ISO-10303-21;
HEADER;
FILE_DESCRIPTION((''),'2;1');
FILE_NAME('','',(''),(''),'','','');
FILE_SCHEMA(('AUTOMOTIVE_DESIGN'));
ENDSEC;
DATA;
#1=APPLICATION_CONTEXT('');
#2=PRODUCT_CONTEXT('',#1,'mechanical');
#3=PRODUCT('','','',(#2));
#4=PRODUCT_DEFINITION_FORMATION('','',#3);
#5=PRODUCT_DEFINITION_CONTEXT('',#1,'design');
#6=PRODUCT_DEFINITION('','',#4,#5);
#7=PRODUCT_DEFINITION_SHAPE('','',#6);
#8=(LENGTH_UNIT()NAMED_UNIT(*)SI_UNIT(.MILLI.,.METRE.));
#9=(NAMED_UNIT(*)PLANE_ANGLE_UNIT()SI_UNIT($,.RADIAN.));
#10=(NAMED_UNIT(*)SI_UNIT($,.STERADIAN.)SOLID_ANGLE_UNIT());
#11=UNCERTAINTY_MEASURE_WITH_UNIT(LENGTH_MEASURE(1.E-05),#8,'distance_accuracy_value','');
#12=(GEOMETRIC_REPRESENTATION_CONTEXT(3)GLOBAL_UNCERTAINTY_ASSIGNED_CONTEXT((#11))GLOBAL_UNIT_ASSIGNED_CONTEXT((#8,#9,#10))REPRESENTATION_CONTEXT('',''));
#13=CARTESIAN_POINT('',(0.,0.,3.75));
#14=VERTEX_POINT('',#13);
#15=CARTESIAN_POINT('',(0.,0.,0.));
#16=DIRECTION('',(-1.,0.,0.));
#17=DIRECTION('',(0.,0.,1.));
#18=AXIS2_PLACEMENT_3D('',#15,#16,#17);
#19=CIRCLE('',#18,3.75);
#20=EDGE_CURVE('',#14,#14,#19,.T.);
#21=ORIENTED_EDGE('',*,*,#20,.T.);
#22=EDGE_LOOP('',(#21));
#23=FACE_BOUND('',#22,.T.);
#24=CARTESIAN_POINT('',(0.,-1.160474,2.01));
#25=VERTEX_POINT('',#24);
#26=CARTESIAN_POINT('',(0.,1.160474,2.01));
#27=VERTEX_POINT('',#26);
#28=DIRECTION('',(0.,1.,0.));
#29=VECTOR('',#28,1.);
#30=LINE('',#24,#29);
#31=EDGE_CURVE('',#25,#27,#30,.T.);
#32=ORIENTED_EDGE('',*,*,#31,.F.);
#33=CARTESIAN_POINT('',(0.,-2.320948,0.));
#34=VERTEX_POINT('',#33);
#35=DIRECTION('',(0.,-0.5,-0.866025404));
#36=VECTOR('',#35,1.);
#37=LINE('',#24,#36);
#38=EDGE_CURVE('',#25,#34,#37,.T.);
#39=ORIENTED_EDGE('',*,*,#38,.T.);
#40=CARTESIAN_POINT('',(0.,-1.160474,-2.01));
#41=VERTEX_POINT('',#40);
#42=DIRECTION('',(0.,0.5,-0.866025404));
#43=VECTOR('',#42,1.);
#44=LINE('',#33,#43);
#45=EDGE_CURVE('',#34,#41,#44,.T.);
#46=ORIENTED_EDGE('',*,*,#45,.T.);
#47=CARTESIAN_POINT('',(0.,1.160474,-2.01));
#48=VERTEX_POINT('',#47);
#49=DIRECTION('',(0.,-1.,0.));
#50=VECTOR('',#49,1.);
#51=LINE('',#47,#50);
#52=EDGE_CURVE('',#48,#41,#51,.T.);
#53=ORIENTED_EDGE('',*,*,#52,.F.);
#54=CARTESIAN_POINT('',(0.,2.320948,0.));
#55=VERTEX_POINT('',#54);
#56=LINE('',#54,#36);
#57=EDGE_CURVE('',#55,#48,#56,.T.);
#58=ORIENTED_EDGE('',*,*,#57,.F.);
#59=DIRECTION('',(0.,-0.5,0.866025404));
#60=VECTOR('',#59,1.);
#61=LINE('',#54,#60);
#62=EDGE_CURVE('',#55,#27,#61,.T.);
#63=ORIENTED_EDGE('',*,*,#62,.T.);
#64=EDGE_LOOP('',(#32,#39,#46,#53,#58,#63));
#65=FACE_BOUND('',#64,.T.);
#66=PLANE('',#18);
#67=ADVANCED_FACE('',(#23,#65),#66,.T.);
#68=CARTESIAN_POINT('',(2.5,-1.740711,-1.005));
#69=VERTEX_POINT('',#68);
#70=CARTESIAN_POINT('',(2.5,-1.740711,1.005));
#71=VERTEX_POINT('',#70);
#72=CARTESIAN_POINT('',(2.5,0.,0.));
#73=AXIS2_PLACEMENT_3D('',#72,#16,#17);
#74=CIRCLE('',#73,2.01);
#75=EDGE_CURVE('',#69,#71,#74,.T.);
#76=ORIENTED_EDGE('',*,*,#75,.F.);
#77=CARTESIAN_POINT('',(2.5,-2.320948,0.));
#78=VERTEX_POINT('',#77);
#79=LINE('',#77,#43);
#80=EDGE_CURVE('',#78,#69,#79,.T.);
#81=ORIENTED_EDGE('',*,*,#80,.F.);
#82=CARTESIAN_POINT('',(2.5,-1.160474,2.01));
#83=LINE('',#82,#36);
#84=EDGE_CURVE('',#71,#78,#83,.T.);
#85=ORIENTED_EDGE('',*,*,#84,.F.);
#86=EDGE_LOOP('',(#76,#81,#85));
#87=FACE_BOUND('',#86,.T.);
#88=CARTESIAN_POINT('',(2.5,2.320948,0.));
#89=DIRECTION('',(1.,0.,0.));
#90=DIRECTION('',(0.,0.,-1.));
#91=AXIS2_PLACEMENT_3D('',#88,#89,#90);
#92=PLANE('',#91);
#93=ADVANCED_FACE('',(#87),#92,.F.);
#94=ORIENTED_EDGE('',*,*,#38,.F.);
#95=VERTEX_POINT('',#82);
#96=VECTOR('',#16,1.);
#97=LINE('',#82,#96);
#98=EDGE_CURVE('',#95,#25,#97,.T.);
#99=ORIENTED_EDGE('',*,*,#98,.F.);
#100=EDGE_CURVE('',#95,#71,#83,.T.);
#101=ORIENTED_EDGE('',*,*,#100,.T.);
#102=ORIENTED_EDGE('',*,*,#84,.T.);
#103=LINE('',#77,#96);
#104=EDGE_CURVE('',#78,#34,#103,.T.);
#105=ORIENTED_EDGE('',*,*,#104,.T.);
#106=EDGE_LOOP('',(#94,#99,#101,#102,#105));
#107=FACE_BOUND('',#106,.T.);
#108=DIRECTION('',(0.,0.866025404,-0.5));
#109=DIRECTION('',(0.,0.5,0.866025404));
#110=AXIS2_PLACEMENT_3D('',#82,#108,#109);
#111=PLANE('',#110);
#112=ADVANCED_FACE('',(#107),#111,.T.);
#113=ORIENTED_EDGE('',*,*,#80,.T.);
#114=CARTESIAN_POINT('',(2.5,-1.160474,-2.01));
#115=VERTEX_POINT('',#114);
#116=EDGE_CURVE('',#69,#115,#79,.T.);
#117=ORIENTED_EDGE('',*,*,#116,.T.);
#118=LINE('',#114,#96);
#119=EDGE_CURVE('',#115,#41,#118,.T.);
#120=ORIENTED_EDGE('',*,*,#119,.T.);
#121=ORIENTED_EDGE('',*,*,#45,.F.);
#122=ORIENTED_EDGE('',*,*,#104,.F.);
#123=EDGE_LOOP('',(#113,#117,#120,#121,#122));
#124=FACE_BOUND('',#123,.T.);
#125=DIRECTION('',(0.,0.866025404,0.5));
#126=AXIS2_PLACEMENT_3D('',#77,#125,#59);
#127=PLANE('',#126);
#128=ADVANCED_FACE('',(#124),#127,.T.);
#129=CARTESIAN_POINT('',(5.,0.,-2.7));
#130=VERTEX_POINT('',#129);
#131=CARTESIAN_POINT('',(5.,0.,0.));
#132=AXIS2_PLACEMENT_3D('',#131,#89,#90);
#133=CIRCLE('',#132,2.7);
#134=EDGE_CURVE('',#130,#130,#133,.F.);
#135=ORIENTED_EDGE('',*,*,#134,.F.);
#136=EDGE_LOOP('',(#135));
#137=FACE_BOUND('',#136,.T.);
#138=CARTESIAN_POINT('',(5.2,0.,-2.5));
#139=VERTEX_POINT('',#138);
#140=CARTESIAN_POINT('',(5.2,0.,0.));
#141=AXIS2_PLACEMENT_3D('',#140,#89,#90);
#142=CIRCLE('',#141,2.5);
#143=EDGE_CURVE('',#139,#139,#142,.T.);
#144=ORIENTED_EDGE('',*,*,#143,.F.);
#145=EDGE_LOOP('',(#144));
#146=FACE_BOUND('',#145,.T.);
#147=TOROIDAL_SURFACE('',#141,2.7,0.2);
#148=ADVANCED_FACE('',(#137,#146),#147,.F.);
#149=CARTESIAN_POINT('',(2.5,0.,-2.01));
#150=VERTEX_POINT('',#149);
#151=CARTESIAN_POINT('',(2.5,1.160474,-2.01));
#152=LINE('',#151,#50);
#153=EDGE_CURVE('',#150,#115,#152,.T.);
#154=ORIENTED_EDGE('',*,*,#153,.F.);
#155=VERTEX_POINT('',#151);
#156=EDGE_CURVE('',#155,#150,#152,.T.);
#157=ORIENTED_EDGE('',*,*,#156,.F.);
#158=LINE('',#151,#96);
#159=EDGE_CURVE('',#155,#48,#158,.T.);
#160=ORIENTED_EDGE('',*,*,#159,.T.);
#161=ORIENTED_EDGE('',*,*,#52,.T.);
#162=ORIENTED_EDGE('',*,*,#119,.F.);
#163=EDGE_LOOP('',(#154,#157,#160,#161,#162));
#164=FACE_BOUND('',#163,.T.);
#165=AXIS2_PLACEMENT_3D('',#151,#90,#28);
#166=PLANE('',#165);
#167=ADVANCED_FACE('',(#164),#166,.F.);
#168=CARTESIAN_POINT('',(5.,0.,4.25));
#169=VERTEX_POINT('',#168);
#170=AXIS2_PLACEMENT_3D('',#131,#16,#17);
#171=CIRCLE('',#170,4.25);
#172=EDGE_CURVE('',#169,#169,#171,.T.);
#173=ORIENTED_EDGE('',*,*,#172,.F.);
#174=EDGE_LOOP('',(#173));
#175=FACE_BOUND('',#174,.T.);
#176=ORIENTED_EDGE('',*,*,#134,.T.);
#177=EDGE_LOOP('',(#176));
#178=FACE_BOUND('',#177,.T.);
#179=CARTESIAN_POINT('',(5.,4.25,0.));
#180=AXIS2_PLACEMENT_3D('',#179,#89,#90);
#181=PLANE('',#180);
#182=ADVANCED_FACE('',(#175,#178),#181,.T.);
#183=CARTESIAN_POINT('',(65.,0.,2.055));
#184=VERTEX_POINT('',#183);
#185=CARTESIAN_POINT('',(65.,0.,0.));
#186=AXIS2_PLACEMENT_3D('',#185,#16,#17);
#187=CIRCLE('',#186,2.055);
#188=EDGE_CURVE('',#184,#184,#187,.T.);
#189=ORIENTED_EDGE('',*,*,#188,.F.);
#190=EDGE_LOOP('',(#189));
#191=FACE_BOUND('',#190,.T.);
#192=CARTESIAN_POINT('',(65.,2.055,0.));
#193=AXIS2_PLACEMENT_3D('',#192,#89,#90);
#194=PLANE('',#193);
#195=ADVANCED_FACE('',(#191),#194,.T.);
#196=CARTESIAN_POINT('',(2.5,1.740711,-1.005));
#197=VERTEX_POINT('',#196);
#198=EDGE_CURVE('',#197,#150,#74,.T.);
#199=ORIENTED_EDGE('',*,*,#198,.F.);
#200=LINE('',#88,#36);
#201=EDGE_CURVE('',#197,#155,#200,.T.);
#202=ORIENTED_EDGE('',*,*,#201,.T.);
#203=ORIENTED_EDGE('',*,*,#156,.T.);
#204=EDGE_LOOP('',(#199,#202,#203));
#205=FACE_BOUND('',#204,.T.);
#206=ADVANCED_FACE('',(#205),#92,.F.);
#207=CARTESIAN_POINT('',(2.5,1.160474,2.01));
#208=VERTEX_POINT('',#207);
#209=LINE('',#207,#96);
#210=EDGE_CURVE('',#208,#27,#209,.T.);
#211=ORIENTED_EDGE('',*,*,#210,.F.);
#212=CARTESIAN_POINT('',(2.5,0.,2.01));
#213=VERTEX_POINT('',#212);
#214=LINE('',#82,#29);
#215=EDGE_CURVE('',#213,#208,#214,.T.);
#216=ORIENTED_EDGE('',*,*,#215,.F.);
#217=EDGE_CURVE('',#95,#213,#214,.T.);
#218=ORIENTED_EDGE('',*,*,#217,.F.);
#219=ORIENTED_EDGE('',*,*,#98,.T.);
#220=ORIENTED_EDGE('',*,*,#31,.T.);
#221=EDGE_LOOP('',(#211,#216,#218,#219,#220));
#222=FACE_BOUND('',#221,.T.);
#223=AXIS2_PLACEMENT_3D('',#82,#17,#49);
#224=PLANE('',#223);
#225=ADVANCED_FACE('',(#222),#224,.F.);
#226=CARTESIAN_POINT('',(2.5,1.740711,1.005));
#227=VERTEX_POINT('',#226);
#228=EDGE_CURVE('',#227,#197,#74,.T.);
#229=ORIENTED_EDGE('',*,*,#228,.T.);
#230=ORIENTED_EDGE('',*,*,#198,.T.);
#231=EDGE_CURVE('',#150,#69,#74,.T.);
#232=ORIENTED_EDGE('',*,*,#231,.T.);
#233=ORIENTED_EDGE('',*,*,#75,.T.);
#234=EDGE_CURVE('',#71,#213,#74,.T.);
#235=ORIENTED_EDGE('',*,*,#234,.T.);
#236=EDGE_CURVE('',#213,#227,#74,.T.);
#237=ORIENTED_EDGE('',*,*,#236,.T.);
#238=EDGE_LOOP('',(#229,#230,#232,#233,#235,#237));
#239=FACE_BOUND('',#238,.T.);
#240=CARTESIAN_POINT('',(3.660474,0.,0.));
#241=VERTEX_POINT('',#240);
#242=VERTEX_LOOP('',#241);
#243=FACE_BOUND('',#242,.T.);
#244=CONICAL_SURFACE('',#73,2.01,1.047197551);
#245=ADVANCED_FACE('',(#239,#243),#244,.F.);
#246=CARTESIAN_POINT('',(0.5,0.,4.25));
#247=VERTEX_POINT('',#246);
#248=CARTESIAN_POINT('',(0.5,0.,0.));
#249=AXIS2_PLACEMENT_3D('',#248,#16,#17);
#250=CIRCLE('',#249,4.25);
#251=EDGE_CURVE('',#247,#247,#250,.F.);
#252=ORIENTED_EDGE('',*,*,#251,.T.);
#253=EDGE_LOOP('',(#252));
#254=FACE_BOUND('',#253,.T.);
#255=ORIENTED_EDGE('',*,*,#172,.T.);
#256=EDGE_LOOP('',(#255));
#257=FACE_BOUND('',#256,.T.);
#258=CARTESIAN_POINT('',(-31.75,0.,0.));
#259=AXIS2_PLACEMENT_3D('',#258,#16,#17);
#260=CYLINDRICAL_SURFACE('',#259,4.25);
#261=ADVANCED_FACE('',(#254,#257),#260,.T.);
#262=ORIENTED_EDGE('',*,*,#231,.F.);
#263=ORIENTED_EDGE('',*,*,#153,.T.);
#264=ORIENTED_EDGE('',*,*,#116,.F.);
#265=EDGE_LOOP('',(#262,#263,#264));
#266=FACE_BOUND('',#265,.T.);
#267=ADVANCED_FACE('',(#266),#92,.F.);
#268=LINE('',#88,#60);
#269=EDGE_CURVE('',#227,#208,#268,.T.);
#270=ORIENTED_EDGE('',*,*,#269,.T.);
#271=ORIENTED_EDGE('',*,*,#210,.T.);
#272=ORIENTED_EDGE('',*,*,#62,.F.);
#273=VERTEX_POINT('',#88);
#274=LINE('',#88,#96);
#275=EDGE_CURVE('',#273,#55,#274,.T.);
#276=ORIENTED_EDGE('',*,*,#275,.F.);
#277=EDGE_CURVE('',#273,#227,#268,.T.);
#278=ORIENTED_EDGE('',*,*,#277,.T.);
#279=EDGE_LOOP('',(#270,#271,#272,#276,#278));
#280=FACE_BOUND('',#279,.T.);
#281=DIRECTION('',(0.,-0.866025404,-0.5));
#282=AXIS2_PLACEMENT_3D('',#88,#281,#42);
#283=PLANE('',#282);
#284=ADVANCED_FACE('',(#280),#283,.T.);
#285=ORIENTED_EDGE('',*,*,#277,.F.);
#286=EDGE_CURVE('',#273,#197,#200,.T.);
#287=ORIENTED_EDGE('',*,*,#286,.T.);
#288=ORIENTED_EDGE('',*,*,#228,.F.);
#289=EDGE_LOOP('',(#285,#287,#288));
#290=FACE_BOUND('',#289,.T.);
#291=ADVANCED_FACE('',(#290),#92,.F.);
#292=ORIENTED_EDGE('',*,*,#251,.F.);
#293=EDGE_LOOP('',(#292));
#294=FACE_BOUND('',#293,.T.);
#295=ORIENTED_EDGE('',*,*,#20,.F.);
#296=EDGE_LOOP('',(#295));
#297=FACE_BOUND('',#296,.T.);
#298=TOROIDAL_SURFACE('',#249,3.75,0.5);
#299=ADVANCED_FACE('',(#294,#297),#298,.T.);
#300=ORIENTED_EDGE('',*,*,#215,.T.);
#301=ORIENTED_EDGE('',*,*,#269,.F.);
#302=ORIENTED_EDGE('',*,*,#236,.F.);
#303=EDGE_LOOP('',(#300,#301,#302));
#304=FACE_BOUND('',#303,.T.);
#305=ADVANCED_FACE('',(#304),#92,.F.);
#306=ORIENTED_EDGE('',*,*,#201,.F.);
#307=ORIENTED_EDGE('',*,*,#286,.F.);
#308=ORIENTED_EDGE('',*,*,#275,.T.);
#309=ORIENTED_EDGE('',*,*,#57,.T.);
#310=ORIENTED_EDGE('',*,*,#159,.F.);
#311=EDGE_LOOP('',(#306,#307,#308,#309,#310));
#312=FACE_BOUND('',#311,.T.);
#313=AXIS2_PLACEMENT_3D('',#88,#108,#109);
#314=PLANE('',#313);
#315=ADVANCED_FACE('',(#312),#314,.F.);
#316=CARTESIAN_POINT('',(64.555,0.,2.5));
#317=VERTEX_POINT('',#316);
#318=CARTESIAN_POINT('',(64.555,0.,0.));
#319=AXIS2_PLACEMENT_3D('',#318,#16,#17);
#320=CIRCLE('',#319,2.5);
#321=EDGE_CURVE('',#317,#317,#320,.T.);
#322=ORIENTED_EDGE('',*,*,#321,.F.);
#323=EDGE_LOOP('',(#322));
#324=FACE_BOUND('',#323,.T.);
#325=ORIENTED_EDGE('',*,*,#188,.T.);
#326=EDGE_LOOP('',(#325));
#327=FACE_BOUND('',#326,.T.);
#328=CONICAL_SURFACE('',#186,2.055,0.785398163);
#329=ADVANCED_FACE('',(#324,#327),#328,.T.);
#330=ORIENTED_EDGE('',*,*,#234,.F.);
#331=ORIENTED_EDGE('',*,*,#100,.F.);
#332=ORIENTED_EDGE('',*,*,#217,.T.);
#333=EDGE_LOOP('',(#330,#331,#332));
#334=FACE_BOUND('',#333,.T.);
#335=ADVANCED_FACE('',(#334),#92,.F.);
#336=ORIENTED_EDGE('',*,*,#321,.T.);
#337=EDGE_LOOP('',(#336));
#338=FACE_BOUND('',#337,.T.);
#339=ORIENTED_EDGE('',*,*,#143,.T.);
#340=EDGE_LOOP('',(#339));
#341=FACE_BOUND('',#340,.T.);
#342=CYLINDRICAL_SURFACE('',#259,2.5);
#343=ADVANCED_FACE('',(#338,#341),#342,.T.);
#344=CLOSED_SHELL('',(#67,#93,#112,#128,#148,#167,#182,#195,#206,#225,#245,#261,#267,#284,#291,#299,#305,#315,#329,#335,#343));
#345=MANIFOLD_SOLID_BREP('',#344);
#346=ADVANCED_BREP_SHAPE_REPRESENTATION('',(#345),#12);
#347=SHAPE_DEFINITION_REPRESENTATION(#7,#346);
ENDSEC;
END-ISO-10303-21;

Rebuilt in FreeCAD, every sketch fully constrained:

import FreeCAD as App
import Part
import Sketcher
Q = App.Units.Quantity


def edges_at(feature, points):
    """Names of the edges that pass closest to the given points."""
    edges = feature.Shape.Edges
    near = lambda p: min(range(len(edges)), key=lambda i: edges[i].distToShape(Part.Vertex(*p))[0])
    return sorted({f"Edge{near(p) + 1}" for p in points})

doc = App.newDocument("Part")
params = doc.addObject("Spreadsheet::Sheet", "Params")
for row, (alias, value) in enumerate([
    ("sketch1_width", "65 mm"),
    ("sketch1_width2", "5 mm"),
    ("sketch1_height", "4.25 mm"),
    ("sketch1_height2", "1.75 mm"),
    ("revolution_angle", "360 deg"),
    ("fillet_radius", "0.2 mm"),
    ("fillet2_radius", "0.5 mm"),
    ("sketch2_width", "2.5 mm"),
    ("sketch2_height", "2.01 mm"),
    ("groove_angle", "360 deg"),
    ("pocket1_length", "2.5 mm"),
], start=1):
    params.set(f"A{row}", alias)
    params.set(f"B{row}", "=" + value)
    params.setAlias(f"B{row}", alias)

body = doc.addObject("PartDesign::Body", "Body")

# Sketch on XY plane
sketch1 = body.newObject("Sketcher::SketchObject", "Sketch")
sketch1.AttachmentSupport = (doc.getObject("XY_Plane"), [""])
sketch1.MapMode = "FlatFace"
sketch1.addGeometry([
    Part.LineSegment(App.Vector(0, 4.2, 0), App.Vector(0, 0, 0)),  # 0
    Part.LineSegment(App.Vector(0, 0, 0), App.Vector(65, 0, 0)),  # 1
    Part.LineSegment(App.Vector(65, 0, 0), App.Vector(65, 2.1, 0)),  # 2
    Part.LineSegment(App.Vector(65, 2.1, 0), App.Vector(64.6, 2.5, 0)),  # 3
    Part.LineSegment(App.Vector(64.6, 2.5, 0), App.Vector(5, 2.5, 0)),  # 4
    Part.LineSegment(App.Vector(5, 2.5, 0), App.Vector(5, 4.2, 0)),  # 5
    Part.LineSegment(App.Vector(5, 4.2, 0), App.Vector(0, 4.2, 0)),  # 6
], False)
sketch1.addConstraint([
    Sketcher.Constraint("Coincident", 0, 2, 1, 1),
    Sketcher.Constraint("Coincident", 1, 2, 2, 1),
    Sketcher.Constraint("Coincident", 2, 2, 3, 1),
    Sketcher.Constraint("Coincident", 3, 2, 4, 1),
    Sketcher.Constraint("Coincident", 4, 2, 5, 1),
    Sketcher.Constraint("Coincident", 5, 2, 6, 1),
    Sketcher.Constraint("Coincident", 6, 2, 0, 1),
    Sketcher.Constraint("Vertical", 0),
    Sketcher.Constraint("Horizontal", 1),
    Sketcher.Constraint("Vertical", 2),
    Sketcher.Constraint("Horizontal", 4),
    Sketcher.Constraint("Vertical", 5),
    Sketcher.Constraint("Horizontal", 6),
    Sketcher.Constraint("Coincident", 0, 2, -1, 1),
    Sketcher.Constraint("DistanceX", 1, 1, 1, 2, Q("65 mm")),
    Sketcher.Constraint("DistanceX", 6, 2, 6, 1, Q("5 mm")),
    Sketcher.Constraint("Angle", 3, Q("135 deg")),
    Sketcher.Constraint("DistanceY", 0, 2, 0, 1, Q("4.25 mm")),
    Sketcher.Constraint("DistanceY", 5, 1, 5, 2, Q("1.75 mm")),
    Sketcher.Constraint("DistanceX", 4, 2, 4, 1, Q("59.555 mm")),
])
sketch1.setExpression("Constraints[14]", "Params.sketch1_width")
sketch1.setExpression("Constraints[15]", "Params.sketch1_width2")
sketch1.setExpression("Constraints[17]", "Params.sketch1_height")
sketch1.setExpression("Constraints[18]", "Params.sketch1_height2")
revolution = body.newObject("PartDesign::Revolution", "Revolution")
revolution.Profile = sketch1
revolution.ReferenceAxis = (sketch1, ["H_Axis"])
revolution.setExpression("Angle", "Params.revolution_angle")
doc.recompute()

fillet = body.newObject("PartDesign::Fillet", "Fillet")
fillet.Base = (revolution, edges_at(revolution, [(5, -2.5, 0)]))
fillet.setExpression("Radius", "Params.fillet_radius")
doc.recompute()

fillet2 = body.newObject("PartDesign::Fillet", "Fillet001")
fillet2.Base = (fillet, edges_at(fillet, [(0, -4.25, 0)]))
fillet2.setExpression("Radius", "Params.fillet2_radius")

# Sketch on XY plane
sketch2 = body.newObject("Sketcher::SketchObject", "Sketch001")
sketch2.AttachmentSupport = (doc.getObject("XY_Plane"), [""])
sketch2.MapMode = "FlatFace"
sketch2.addGeometry([
    Part.LineSegment(App.Vector(2.5, 2, 0), App.Vector(0, 2, 0)),
    Part.LineSegment(App.Vector(0, 2, 0), App.Vector(0, 0, 0)),
    Part.LineSegment(App.Vector(0, 0, 0), App.Vector(3.7, 0, 0)),
    Part.LineSegment(App.Vector(3.7, 0, 0), App.Vector(2.5, 2, 0)),
], False)
sketch2.addConstraint([
    Sketcher.Constraint("Coincident", 0, 2, 1, 1),
    Sketcher.Constraint("Coincident", 1, 2, 2, 1),
    Sketcher.Constraint("Coincident", 2, 2, 3, 1),
    Sketcher.Constraint("Coincident", 3, 2, 0, 1),
    Sketcher.Constraint("Horizontal", 0),
    Sketcher.Constraint("Vertical", 1),
    Sketcher.Constraint("Horizontal", 2),
    Sketcher.Constraint("Coincident", 1, 2, -1, 1),
    Sketcher.Constraint("Angle", 3, Q("120 deg")),
    Sketcher.Constraint("DistanceX", 0, 2, 0, 1, Q("2.5 mm")),
    Sketcher.Constraint("DistanceY", 1, 2, 1, 1, Q("2.01 mm")),
])
sketch2.setExpression("Constraints[9]", "Params.sketch2_width")
sketch2.setExpression("Constraints[10]", "Params.sketch2_height")
groove = body.newObject("PartDesign::Groove", "Groove")
groove.Profile = sketch2
groove.ReferenceAxis = (sketch2, ["H_Axis"])
groove.setExpression("Angle", "Params.groove_angle")

# Sketch on YZ plane
sketch3 = body.newObject("Sketcher::SketchObject", "Sketch002")
sketch3.AttachmentSupport = (doc.getObject("YZ_Plane"), [""])
sketch3.MapMode = "FlatFace"
sketch3.addGeometry([
    Part.LineSegment(App.Vector(2.3, 0, 0), App.Vector(1.2, -2, 0)),  # 0
    Part.LineSegment(App.Vector(1.2, -2, 0), App.Vector(-1.2, -2, 0)),  # 1
    Part.LineSegment(App.Vector(-1.2, -2, 0), App.Vector(-2.3, 0, 0)),  # 2
    Part.LineSegment(App.Vector(-2.3, 0, 0), App.Vector(-1.2, 2, 0)),  # 3
    Part.LineSegment(App.Vector(-1.2, 2, 0), App.Vector(1.2, 2, 0)),  # 4
    Part.LineSegment(App.Vector(1.2, 2, 0), App.Vector(2.3, 0, 0)),  # 5
], False)
sketch3.addConstraint([
    Sketcher.Constraint("Coincident", 0, 2, 1, 1),
    Sketcher.Constraint("Coincident", 1, 2, 2, 1),
    Sketcher.Constraint("Coincident", 2, 2, 3, 1),
    Sketcher.Constraint("Coincident", 3, 2, 4, 1),
    Sketcher.Constraint("Coincident", 4, 2, 5, 1),
    Sketcher.Constraint("Coincident", 5, 2, 0, 1),
    Sketcher.Constraint("Horizontal", 1),
    Sketcher.Constraint("Horizontal", 4),
    Sketcher.Constraint("Symmetric", 0, 2, 3, 2, -1, 1),
    Sketcher.Constraint("Symmetric", 2, 2, 5, 2, -1, 1),
    Sketcher.Constraint("PointOnObject", 2, 2, -1),
    Sketcher.Constraint("Parallel", 2, 5),
    Sketcher.Constraint("Vertical", 1, 2, 3, 2),
    Sketcher.Constraint("Angle", 0, Q("-120 deg")),
    Sketcher.Constraint("DistanceY", 0, 2, -1, 1, Q("2.01 mm")),
    Sketcher.Constraint("DistanceX", 1, 2, 1, 1, Q("2.320948 mm")),
])
pocket1 = body.newObject("PartDesign::Pocket", "Pocket")
pocket1.Profile = sketch3
pocket1.setExpression("Length", "Params.pocket1_length")
pocket1.Reversed = True

doc.recompute()
